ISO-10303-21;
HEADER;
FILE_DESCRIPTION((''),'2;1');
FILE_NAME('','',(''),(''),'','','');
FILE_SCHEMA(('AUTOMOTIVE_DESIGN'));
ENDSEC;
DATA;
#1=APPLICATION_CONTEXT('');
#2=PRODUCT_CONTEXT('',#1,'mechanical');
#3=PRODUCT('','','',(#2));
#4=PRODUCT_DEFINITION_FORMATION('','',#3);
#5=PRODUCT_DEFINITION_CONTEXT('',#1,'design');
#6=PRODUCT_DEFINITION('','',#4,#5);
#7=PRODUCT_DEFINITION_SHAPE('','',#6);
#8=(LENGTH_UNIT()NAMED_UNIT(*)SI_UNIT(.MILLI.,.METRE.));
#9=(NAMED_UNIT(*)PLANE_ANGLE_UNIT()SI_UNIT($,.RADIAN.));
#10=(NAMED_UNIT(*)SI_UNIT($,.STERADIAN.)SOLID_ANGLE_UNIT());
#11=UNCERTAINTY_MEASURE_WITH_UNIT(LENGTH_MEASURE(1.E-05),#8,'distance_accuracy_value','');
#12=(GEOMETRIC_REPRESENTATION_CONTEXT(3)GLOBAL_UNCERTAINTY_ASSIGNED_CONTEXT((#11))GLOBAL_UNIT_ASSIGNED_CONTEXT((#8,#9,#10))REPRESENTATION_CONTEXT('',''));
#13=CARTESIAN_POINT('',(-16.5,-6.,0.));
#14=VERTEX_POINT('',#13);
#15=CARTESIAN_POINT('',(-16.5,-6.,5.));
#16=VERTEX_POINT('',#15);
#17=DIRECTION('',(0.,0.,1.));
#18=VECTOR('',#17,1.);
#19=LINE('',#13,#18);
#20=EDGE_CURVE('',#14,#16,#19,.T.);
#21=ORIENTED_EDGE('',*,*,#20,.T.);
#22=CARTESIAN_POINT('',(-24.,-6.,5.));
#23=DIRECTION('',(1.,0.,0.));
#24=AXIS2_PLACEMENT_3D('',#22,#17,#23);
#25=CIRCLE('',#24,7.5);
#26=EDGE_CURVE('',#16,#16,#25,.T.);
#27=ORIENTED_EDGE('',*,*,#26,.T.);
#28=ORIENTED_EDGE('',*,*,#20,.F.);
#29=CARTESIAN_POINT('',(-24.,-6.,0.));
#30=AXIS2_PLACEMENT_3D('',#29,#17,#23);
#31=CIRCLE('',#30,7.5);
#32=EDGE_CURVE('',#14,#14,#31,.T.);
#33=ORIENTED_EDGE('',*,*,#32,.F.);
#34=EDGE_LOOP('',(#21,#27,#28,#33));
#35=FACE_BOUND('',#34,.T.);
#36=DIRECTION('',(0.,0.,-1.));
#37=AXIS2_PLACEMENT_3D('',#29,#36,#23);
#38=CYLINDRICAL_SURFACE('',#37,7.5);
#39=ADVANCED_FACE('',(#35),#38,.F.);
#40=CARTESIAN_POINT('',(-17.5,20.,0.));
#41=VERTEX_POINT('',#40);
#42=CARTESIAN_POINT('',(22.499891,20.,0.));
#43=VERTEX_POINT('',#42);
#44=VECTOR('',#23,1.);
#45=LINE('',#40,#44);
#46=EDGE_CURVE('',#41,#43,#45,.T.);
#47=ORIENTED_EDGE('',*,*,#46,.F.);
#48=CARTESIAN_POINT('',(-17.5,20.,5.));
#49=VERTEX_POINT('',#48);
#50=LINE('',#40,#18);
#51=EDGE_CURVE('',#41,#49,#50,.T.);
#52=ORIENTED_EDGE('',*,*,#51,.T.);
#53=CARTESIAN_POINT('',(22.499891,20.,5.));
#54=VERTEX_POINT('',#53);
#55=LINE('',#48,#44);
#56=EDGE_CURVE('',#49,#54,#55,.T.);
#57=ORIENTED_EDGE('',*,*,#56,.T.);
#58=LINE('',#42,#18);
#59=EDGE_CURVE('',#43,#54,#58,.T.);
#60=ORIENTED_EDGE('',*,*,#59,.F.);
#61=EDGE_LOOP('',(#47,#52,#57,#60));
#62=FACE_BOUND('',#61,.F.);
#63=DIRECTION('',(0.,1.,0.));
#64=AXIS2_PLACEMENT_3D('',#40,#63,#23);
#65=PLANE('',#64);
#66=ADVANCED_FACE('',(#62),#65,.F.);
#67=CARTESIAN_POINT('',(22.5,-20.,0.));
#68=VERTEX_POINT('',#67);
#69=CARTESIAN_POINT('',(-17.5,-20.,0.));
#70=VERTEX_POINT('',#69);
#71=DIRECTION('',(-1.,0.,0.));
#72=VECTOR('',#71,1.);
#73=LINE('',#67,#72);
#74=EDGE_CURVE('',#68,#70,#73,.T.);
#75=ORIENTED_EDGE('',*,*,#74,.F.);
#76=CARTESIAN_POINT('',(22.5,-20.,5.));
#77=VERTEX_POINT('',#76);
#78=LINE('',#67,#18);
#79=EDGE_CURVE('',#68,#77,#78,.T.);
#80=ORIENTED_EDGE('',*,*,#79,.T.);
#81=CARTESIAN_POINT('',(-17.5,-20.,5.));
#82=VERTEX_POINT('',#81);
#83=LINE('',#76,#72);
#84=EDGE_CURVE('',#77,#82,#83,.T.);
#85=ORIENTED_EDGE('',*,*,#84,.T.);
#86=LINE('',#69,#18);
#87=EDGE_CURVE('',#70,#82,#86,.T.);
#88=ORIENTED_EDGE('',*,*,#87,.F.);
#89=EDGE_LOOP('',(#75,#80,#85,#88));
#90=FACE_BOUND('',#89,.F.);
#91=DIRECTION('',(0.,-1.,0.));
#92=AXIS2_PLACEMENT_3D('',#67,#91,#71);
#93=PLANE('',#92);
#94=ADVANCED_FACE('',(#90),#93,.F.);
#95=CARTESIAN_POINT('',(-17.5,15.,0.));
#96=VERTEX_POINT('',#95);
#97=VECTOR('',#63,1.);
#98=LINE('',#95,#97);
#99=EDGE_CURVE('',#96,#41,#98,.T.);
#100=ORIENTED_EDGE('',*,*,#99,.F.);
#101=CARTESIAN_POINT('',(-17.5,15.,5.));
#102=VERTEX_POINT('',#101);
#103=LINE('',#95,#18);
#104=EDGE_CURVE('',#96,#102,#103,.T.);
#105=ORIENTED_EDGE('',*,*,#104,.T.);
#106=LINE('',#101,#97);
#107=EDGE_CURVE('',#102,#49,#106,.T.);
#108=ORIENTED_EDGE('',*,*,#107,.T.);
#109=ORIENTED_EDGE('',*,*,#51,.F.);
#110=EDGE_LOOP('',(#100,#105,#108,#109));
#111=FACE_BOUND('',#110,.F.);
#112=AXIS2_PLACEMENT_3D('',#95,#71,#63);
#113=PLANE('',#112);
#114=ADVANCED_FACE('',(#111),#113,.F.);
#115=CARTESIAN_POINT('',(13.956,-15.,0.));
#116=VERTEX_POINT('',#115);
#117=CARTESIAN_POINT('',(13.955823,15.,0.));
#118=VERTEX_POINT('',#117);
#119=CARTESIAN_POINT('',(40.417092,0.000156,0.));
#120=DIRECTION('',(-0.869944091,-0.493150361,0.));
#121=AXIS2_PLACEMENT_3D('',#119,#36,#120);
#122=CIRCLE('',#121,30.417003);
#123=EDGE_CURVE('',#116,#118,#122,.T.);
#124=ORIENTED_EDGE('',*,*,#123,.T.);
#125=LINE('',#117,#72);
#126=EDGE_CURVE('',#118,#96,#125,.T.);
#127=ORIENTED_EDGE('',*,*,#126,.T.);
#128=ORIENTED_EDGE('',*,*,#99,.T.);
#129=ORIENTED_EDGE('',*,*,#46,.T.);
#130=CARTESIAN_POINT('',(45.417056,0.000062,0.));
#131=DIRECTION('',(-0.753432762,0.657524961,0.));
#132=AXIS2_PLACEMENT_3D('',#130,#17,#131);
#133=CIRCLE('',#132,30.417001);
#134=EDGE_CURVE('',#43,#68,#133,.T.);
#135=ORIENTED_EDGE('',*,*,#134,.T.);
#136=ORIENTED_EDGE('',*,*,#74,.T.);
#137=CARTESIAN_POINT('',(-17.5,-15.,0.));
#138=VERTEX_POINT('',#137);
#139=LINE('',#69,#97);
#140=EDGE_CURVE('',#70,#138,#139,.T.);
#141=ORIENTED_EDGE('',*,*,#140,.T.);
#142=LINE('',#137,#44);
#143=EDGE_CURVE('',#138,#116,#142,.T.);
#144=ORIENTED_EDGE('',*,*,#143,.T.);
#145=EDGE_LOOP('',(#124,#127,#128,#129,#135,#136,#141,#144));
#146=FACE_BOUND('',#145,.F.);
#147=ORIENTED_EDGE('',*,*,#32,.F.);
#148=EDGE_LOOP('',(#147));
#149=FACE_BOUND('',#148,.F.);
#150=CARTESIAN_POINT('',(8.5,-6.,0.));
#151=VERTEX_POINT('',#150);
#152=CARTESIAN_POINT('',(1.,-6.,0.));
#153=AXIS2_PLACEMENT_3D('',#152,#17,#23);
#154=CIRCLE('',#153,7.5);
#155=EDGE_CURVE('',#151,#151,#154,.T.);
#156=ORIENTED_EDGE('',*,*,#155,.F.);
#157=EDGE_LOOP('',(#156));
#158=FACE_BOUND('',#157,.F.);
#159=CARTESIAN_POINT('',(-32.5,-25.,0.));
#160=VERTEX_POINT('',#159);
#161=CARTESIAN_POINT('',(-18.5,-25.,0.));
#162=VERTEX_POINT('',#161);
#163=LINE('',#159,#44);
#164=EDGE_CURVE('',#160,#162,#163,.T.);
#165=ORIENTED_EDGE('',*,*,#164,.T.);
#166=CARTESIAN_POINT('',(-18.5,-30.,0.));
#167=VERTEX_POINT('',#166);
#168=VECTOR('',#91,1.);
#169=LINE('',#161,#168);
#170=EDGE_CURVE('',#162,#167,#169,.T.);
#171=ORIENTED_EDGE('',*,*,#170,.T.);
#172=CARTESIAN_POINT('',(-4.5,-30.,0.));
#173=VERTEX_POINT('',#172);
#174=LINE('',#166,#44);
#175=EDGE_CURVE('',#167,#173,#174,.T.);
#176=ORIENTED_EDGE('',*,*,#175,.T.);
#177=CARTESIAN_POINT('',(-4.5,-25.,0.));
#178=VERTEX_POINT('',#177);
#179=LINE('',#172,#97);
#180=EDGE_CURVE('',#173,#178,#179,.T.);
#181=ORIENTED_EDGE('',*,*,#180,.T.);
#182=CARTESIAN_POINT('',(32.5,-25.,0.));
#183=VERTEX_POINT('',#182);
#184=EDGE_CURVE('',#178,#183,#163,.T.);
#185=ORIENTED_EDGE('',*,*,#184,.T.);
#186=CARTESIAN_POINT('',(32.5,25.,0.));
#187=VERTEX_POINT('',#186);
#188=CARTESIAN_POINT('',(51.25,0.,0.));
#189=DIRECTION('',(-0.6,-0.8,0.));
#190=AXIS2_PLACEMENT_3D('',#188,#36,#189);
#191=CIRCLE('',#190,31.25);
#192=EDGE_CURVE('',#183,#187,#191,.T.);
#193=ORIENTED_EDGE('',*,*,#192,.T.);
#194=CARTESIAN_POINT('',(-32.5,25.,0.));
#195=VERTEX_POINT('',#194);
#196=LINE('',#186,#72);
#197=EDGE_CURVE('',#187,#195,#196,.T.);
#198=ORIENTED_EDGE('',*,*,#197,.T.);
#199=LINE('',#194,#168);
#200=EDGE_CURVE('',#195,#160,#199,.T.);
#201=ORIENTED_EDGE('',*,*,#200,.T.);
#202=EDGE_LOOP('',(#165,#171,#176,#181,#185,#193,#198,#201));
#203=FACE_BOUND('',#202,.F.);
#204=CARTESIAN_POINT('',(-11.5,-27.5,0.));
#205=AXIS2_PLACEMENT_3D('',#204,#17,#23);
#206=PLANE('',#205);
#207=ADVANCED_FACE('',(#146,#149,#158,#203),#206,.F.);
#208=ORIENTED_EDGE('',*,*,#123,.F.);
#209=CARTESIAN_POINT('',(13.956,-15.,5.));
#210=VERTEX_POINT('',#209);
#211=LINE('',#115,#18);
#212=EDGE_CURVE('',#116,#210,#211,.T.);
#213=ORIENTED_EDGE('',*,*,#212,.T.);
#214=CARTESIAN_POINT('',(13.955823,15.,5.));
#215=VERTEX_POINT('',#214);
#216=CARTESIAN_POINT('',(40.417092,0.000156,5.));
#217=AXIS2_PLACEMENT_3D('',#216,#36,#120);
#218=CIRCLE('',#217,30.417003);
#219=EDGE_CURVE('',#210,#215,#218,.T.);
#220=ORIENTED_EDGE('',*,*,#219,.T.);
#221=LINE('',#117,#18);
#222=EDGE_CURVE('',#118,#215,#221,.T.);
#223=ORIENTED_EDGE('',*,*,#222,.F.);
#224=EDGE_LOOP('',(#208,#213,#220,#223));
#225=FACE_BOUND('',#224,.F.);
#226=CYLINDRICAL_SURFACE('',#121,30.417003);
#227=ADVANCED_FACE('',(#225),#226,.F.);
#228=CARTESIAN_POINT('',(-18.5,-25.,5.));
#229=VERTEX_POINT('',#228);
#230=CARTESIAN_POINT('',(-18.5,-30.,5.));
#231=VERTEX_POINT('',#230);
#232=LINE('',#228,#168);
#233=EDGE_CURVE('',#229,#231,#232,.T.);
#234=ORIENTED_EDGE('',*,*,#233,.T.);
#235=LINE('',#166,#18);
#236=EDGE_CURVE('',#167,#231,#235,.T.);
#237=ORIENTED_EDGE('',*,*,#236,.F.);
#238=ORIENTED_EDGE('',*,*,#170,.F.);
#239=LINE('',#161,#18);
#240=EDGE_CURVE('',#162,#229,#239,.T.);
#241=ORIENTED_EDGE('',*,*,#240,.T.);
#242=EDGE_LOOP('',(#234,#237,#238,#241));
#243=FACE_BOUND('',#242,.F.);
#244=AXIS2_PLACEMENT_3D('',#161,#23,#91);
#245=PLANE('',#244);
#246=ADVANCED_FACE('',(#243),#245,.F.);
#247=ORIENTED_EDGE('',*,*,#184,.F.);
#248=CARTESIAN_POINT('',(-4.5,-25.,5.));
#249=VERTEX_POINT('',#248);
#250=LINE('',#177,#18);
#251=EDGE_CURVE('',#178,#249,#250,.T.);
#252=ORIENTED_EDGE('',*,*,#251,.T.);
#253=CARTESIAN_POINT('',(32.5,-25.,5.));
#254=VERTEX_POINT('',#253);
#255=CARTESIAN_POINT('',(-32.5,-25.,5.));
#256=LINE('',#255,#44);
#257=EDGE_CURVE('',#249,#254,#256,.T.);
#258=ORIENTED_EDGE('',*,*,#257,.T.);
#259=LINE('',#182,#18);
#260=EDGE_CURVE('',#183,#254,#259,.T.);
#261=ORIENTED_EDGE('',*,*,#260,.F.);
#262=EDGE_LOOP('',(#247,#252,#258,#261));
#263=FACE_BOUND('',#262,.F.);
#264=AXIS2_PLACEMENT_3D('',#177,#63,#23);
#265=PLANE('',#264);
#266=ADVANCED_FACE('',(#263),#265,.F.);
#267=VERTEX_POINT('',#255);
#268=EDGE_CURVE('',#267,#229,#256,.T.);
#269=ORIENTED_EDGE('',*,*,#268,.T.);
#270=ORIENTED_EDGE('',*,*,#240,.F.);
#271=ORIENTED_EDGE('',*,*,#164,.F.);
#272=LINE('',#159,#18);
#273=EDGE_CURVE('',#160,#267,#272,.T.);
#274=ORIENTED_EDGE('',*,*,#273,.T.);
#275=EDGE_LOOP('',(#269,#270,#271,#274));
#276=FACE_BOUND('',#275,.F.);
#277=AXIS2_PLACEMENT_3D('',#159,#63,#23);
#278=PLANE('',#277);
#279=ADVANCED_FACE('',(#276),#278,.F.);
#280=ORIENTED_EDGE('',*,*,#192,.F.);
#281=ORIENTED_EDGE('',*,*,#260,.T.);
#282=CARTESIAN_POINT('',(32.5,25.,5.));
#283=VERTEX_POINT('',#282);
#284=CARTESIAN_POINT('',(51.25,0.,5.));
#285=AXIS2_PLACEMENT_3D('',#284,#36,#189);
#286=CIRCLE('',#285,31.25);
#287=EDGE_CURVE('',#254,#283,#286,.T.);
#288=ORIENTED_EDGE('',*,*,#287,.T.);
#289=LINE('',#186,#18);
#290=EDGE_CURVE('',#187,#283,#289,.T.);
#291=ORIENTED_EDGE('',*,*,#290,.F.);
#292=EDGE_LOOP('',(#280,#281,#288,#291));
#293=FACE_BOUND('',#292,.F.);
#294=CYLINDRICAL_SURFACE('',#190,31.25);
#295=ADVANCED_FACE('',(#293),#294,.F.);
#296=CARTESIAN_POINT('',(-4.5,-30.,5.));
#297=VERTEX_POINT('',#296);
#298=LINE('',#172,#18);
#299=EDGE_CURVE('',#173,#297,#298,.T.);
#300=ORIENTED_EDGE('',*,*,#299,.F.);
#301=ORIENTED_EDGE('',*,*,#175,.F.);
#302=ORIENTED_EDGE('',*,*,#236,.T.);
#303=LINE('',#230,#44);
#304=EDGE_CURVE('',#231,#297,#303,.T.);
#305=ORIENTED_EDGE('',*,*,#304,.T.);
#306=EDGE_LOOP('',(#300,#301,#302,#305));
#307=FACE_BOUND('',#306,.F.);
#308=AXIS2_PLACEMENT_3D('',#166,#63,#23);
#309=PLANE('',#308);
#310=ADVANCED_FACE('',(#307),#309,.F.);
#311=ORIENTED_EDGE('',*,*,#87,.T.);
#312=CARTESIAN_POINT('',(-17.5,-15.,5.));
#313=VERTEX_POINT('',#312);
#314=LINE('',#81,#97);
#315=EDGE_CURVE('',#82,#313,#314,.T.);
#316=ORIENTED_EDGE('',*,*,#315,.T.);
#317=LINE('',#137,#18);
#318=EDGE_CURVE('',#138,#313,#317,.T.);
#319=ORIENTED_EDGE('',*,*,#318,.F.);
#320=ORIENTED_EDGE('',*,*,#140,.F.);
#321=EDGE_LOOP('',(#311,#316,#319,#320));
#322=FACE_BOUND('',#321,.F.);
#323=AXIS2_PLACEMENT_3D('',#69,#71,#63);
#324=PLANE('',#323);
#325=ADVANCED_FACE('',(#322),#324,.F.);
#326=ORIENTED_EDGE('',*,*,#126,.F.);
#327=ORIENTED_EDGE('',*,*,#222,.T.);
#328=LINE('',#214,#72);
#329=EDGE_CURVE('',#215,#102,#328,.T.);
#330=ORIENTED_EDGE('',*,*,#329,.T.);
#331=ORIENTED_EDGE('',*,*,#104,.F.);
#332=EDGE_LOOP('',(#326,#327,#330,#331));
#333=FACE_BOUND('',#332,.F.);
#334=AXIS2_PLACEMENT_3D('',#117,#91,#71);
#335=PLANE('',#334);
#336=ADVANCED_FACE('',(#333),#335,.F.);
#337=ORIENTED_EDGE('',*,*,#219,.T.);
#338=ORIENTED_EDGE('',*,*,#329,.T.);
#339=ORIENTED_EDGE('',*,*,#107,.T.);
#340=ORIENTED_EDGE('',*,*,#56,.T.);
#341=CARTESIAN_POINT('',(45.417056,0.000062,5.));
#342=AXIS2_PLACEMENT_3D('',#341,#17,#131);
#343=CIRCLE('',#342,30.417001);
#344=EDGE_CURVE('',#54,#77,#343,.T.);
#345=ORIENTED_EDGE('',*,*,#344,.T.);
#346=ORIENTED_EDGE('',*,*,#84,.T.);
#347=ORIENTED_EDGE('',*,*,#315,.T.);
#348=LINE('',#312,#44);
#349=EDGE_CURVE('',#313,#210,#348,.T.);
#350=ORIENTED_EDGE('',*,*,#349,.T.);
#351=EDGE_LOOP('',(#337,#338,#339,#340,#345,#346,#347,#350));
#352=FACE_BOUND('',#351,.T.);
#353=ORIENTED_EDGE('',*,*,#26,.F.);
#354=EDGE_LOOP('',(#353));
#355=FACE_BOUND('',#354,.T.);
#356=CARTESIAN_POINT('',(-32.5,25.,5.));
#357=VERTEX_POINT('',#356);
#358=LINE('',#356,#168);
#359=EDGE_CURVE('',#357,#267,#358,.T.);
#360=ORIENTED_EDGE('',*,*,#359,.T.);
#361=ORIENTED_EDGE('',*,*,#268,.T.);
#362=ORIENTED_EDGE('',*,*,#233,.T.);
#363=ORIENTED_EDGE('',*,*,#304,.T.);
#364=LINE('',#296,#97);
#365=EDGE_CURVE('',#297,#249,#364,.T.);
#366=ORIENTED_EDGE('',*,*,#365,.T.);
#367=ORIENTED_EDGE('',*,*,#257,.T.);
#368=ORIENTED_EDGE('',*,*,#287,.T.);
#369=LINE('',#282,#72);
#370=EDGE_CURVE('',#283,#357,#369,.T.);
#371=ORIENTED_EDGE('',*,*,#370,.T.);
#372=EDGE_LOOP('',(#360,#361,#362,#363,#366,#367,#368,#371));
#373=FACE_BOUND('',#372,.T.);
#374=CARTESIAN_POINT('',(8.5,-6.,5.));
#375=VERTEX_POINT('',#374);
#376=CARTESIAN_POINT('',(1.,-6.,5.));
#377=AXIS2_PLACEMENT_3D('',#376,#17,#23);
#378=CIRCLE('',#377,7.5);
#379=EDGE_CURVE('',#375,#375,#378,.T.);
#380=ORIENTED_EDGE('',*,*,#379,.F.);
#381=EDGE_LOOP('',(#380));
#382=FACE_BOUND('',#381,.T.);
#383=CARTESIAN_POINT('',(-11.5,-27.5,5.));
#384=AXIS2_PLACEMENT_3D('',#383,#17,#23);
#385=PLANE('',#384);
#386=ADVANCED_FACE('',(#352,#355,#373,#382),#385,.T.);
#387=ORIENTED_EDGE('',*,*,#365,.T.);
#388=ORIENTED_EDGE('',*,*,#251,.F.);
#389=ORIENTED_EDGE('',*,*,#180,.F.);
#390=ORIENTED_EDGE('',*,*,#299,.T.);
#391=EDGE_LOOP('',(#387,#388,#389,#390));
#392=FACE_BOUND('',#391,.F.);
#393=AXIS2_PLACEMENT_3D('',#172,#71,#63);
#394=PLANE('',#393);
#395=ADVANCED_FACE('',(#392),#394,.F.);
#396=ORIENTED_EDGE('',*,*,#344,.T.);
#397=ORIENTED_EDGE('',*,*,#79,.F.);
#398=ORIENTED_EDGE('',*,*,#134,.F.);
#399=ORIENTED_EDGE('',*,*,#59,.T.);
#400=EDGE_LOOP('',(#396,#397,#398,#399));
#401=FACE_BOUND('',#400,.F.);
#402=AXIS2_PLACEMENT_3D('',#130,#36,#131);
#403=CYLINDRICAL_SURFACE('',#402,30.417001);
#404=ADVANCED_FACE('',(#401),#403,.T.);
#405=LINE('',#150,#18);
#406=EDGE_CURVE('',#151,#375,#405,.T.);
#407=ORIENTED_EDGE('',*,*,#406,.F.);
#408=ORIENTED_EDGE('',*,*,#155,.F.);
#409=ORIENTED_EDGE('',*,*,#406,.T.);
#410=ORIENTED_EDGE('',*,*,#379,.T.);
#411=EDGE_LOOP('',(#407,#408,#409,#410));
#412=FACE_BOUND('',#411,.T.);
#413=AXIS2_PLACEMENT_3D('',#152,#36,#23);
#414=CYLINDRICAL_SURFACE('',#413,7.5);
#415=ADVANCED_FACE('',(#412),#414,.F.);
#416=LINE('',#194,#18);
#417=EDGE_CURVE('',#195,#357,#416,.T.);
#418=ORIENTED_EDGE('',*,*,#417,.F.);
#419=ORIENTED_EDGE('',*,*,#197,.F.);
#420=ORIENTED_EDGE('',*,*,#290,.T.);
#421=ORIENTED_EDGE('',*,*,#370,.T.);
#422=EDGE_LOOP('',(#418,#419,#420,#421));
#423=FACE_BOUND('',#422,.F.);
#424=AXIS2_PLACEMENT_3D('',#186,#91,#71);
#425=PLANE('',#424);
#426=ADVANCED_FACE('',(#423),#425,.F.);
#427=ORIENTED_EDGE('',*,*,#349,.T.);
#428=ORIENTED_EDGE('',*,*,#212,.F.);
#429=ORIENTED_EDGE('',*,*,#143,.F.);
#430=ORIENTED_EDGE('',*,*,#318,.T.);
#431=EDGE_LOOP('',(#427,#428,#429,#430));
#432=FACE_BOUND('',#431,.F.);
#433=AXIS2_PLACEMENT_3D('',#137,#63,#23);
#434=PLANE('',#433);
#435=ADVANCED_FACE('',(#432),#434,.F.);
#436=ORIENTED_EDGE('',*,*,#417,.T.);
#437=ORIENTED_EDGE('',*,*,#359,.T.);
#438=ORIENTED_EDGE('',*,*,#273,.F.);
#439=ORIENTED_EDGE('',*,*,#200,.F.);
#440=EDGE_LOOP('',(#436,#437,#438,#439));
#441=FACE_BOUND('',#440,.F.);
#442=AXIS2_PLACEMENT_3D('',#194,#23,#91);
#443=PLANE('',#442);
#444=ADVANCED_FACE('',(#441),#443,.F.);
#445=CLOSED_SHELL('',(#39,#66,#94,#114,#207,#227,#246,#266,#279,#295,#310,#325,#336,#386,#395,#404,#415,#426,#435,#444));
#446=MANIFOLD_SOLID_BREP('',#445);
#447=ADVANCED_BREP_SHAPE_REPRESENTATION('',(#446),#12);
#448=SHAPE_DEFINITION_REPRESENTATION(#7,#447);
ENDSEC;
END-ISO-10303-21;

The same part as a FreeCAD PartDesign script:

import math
import FreeCAD as App
import Part
import Sketcher
from FreeCAD import Vector
Q = App.Units.Quantity

doc = App.newDocument("Part")
params = doc.addObject("Spreadsheet::Sheet", "Params")
for row, (alias, value) in enumerate([
    ("sketch1_diameter", "15 mm"),
    ("sketch1_width", "37 mm"),
    ("sketch1_width2", "65 mm"),
    ("sketch1_width3", "40 mm"),
    ("sketch1_height", "5 mm"),
    ("pad1_length", "5 mm"),
], start=1):
    params.set(f"A{row}", alias)
    params.set(f"B{row}", "=" + value)
    params.setAlias(f"B{row}", alias)

body = doc.addObject("PartDesign::Body", "Body")

sketch1 = body.newObject("Sketcher::SketchObject", "Sketch")
sketch1.AttachmentSupport = (doc.getObject("XY_Plane"), [""])
sketch1.MapMode = "FlatFace"
sketch1.addGeometry([
    Part.LineSegment(Vector(-4, -30, 0), Vector(-4, -25, 0)),
    Part.LineSegment(Vector(-4, -25, 0), Vector(32, -25, 0)),
    Part.ArcOfCircle(Part.Circle(Vector(51, 0, 0), Vector(0, 0, 1), 31), math.radians(127), math.radians(233)),
    Part.LineSegment(Vector(32, 25, 0), Vector(-32, 25, 0)),
    Part.LineSegment(Vector(-32, 25, 0), Vector(-32, -25, 0)),
    Part.LineSegment(Vector(-32, -25, 0), Vector(-18, -25, 0)),
    Part.LineSegment(Vector(-18, -25, 0), Vector(-18, -30, 0)),
    Part.LineSegment(Vector(-18, -30, 0), Vector(-4, -30, 0)),
    Part.Circle(Vector(-24, -6, 0), Vector(0, 0, 1), 8),
    Part.Circle(Vector(1, -6, 0), Vector(0, 0, 1), 8),
    Part.LineSegment(Vector(-18, 15, 0), Vector(-18, 20, 0)),
    Part.LineSegment(Vector(-18, 20, 0), Vector(22, 20, 0)),
    Part.ArcOfCircle(Part.Circle(Vector(45, 0, 0), Vector(0, 0, 1), 30), math.radians(139), math.radians(221)),
    Part.LineSegment(Vector(22, -20, 0), Vector(-18, -20, 0)),
    Part.LineSegment(Vector(-18, -20, 0), Vector(-18, -15, 0)),
    Part.LineSegment(Vector(-18, -15, 0), Vector(14, -15, 0)),
    Part.ArcOfCircle(Part.Circle(Vector(40, 0, 0), Vector(0, 0, 1), 30), math.radians(150), math.radians(210)),
    Part.LineSegment(Vector(14, 15, 0), Vector(-18, 15, 0)),
], False)
sketch1.addConstraint([
    Sketcher.Constraint("Coincident", 0, 2, 1, 1),
    Sketcher.Constraint("Coincident", 1, 2, 2, 2),
    Sketcher.Constraint("Coincident", 2, 1, 3, 1),
    Sketcher.Constraint("Coincident", 3, 2, 4, 1),
    Sketcher.Constraint("Coincident", 4, 2, 5, 1),
    Sketcher.Constraint("Coincident", 5, 2, 6, 1),
    Sketcher.Constraint("Coincident", 6, 2, 7, 1),
    Sketcher.Constraint("Coincident", 7, 2, 0, 1),
    Sketcher.Constraint("Coincident", 10, 2, 11, 1),
    Sketcher.Constraint("Coincident", 11, 2, 12, 1),
    Sketcher.Constraint("Coincident", 12, 2, 13, 1),
    Sketcher.Constraint("Coincident", 13, 2, 14, 1),
    Sketcher.Constraint("Coincident", 14, 2, 15, 1),
    Sketcher.Constraint("Coincident", 15, 2, 16, 2),
    Sketcher.Constraint("Coincident", 16, 1, 17, 1),
    Sketcher.Constraint("Coincident", 17, 2, 10, 1),
    Sketcher.Constraint("Vertical", 0),
    Sketcher.Constraint("Horizontal", 1),
    Sketcher.Constraint("Horizontal", 3),
    Sketcher.Constraint("Vertical", 4),
    Sketcher.Constraint("Horizontal", 5),
    Sketcher.Constraint("Vertical", 6),
    Sketcher.Constraint("Horizontal", 7),
    Sketcher.Constraint("Vertical", 10),
    Sketcher.Constraint("Horizontal", 11),
    Sketcher.Constraint("Horizontal", 13),
    Sketcher.Constraint("Vertical", 14),
    Sketcher.Constraint("Horizontal", 15),
    Sketcher.Constraint("Horizontal", 17),
    Sketcher.Constraint("Equal", 8, 9),
    Sketcher.Constraint("Equal", 12, 16),
    Sketcher.Constraint("Symmetric", 1, 2, 3, 2, -1, 1),
    Sketcher.Constraint("Symmetric", 2, 1, 4, 2, -1, 1),
    Sketcher.Constraint("Symmetric", 10, 2, 13, 2, -1),
    Sketcher.Constraint("Horizontal", 8, 3, 9, 3),
    Sketcher.Constraint("Equal", 5, 7),
    Sketcher.Constraint("Equal", 6, 10),
    Sketcher.Constraint("Equal", 10, 14),
    Sketcher.Constraint("Diameter", 8, Q("15 mm")),
    Sketcher.Constraint("DistanceX", 1, 1, 1, 2, Q("37 mm")),
    Sketcher.Constraint("DistanceX", 3, 2, 3, 1, Q("65 mm")),
    Sketcher.Constraint("DistanceX", 13, 2, 13, 1, Q("40 mm")),
    Sketcher.Constraint("DistanceY", 0, 1, 0, 2, Q("5 mm")),
    Sketcher.Constraint("DistanceY", 4, 2, 4, 1, Q("50 mm")),
    Sketcher.Constraint("Radius", 2, Q("31.25 mm")),
    Sketcher.Constraint("DistanceX", 8, 3, -1, 1, Q("24 mm")),
    Sketcher.Constraint("DistanceY", 8, 3, -1, 1, Q("6 mm")),
    Sketcher.Constraint("DistanceX", -1, 1, 9, 3, Q("1 mm")),
    Sketcher.Constraint("DistanceY", -1, 1, 10, 2, Q("20 mm")),
    Sketcher.Constraint("Radius", 12, Q("30.417001 mm")),
    Sketcher.Constraint("DistanceX", 3, 2, 10, 2, Q("15 mm")),
    Sketcher.Constraint("DistanceX", 15, 1, 15, 2, Q("31.456 mm")),
    Sketcher.Constraint("DistanceX", 11, 1, 11, 2, Q("39.999891 mm")),
    Sketcher.Constraint("DistanceX", 11, 2, 16, 3, Q("17.917201 mm")),
])
sketch1.setExpression("Constraints[38]", "Params.sketch1_diameter")
sketch1.setExpression("Constraints[39]", "Params.sketch1_width")
sketch1.setExpression("Constraints[40]", "Params.sketch1_width2")
sketch1.setExpression("Constraints[41]", "Params.sketch1_width3")
sketch1.setExpression("Constraints[42]", "Params.sketch1_height")
pad1 = body.newObject("PartDesign::Pad", "Pad")
pad1.Profile = sketch1
pad1.setExpression("Length", "Params.pad1_length")

doc.recompute()
